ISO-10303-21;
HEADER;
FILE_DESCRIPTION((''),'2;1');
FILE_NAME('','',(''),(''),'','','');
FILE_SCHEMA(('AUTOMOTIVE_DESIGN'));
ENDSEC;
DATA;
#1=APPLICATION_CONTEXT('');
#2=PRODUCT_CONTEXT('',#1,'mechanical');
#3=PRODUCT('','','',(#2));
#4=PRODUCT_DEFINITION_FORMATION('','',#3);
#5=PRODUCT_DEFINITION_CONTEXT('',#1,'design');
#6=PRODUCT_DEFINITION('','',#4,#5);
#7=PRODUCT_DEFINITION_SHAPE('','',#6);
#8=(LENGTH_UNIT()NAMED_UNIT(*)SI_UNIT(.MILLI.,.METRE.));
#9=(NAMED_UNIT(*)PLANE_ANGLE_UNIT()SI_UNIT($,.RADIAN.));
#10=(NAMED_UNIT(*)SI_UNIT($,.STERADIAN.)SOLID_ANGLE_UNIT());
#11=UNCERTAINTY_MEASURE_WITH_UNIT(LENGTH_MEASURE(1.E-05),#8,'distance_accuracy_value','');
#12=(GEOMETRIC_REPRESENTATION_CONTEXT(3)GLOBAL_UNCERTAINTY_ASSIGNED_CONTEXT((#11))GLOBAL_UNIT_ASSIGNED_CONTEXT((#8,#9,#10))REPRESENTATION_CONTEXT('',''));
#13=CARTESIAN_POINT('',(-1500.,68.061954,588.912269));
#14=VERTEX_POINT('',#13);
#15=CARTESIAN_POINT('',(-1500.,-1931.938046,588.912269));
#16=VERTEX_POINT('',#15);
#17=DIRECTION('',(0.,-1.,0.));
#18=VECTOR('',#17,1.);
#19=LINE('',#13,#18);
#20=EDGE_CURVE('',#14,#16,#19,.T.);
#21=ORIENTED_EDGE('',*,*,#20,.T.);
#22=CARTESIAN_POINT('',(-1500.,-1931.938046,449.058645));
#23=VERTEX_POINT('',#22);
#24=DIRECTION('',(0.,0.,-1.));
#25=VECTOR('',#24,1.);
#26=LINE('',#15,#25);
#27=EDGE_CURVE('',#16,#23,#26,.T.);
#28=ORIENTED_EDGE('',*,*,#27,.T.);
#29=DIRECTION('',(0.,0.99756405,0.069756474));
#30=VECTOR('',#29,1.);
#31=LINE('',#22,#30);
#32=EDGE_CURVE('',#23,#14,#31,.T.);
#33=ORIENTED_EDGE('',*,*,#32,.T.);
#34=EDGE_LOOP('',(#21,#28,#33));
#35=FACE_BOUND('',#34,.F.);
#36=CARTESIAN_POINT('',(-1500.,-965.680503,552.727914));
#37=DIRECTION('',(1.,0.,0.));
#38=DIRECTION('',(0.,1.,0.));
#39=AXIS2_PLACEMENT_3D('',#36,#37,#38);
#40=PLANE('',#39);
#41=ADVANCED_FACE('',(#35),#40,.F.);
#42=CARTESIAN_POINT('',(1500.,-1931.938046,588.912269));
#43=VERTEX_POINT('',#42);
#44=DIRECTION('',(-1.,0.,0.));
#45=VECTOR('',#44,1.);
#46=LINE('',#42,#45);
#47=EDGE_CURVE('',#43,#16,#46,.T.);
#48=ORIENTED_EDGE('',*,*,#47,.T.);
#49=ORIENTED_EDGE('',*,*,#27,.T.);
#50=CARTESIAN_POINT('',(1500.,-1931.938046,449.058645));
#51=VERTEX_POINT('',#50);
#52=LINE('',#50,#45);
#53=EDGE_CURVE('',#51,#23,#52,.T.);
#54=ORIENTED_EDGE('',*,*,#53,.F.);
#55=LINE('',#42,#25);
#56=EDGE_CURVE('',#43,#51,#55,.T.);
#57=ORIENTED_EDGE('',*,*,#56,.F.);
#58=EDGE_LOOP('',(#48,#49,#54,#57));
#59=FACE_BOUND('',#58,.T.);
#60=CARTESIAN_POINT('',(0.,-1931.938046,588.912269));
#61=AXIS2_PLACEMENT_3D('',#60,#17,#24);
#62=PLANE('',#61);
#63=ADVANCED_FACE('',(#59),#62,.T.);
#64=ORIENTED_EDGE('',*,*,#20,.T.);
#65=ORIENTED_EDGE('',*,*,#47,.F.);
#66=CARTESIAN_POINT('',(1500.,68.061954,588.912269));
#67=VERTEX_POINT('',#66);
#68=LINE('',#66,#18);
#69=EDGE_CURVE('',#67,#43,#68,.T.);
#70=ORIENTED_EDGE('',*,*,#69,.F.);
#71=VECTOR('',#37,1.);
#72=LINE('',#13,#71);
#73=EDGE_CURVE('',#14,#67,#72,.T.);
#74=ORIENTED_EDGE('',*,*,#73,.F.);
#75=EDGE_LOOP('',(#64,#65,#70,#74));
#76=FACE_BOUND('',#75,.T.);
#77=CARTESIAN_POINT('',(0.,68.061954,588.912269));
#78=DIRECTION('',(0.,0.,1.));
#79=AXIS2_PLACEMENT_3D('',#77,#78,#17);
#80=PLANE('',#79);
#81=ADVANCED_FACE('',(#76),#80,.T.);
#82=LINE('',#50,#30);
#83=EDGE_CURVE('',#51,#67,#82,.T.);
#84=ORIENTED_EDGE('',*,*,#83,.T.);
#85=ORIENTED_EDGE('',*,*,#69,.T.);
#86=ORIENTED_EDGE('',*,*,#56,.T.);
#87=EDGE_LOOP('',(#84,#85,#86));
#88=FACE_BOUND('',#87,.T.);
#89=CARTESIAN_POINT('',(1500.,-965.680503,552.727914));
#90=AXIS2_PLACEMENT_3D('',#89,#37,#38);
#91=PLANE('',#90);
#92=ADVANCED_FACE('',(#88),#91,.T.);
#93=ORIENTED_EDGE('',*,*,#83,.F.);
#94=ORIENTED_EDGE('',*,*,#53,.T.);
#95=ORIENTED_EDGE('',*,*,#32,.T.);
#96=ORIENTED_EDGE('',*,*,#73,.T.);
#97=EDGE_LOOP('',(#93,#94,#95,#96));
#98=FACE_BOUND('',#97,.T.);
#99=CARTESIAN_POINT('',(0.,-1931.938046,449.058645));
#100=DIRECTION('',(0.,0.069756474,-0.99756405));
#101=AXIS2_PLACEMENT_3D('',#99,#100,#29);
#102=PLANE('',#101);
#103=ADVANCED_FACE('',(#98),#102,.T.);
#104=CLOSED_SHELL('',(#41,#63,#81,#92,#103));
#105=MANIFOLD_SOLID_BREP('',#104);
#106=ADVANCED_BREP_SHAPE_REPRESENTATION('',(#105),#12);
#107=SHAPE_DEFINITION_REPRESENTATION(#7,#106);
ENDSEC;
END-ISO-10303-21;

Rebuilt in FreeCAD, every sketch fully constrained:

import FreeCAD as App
import Part
import Sketcher
from FreeCAD import Vector
Q = App.Units.Quantity


def add_polygon(sketch, points):
    """Adds a closed chain of lines whose ends are joined by coincident constraints."""
    first, n = sketch.GeometryCount, len(points)
    for a, b in zip(points, points[1:] + points[:1]):
        sketch.addGeometry(Part.LineSegment(App.Vector(*a, 0), App.Vector(*b, 0)), False)
    for i in range(n):
        sketch.addConstraint(Sketcher.Constraint("Coincident", first + i, 2, first + (i + 1) % n, 1))

doc = App.newDocument("Part")
params = doc.addObject("Spreadsheet::Sheet", "Params")
for row, (alias, value) in enumerate([
    ("sketch1_width", "2000 mm"),
    ("pad1_length", "1500 mm"),
    ("pad1_length2", "1500 mm"),
], start=1):
    params.set(f"A{row}", alias)
    params.set(f"B{row}", "=" + value)
    params.setAlias(f"B{row}", alias)

body = doc.addObject("PartDesign::Body", "Body")

# Sketch on YZ plane
sketch1 = doc.addObject("Sketcher::SketchObject", "Sketch")
body.addObject(sketch1)
sketch1.AttachmentSupport = (doc.YZ_Plane, [""])
sketch1.MapMode = "FlatFace"
add_polygon(sketch1, [(-1932, 449), (68, 589), (-1932, 589)])  # lines 0-2
sketch1.addConstraint([
    Sketcher.Constraint("Horizontal", 1),
    Sketcher.Constraint("Vertical", 2),
    Sketcher.Constraint("DistanceX", 1, 2, 1, 1, 2000.0),
    Sketcher.Constraint("Angle", 0, Q("4 deg")),
    Sketcher.Constraint("DistanceY", -1, 1, 0, 2, 588.912269),
    Sketcher.Constraint("DistanceX", -1, 1, 0, 2, 68.061954),
])
sketch1.setExpression("Constraints[5]", "Params.sketch1_width")
pad1 = doc.addObject("PartDesign::Pad", "Pad")
body.addObject(pad1)
pad1.Profile = sketch1
pad1.Type = "TwoLengths"
pad1.setExpression("Length", "Params.pad1_length")
pad1.setExpression("Length2", "Params.pad1_length2")

doc.recompute()
